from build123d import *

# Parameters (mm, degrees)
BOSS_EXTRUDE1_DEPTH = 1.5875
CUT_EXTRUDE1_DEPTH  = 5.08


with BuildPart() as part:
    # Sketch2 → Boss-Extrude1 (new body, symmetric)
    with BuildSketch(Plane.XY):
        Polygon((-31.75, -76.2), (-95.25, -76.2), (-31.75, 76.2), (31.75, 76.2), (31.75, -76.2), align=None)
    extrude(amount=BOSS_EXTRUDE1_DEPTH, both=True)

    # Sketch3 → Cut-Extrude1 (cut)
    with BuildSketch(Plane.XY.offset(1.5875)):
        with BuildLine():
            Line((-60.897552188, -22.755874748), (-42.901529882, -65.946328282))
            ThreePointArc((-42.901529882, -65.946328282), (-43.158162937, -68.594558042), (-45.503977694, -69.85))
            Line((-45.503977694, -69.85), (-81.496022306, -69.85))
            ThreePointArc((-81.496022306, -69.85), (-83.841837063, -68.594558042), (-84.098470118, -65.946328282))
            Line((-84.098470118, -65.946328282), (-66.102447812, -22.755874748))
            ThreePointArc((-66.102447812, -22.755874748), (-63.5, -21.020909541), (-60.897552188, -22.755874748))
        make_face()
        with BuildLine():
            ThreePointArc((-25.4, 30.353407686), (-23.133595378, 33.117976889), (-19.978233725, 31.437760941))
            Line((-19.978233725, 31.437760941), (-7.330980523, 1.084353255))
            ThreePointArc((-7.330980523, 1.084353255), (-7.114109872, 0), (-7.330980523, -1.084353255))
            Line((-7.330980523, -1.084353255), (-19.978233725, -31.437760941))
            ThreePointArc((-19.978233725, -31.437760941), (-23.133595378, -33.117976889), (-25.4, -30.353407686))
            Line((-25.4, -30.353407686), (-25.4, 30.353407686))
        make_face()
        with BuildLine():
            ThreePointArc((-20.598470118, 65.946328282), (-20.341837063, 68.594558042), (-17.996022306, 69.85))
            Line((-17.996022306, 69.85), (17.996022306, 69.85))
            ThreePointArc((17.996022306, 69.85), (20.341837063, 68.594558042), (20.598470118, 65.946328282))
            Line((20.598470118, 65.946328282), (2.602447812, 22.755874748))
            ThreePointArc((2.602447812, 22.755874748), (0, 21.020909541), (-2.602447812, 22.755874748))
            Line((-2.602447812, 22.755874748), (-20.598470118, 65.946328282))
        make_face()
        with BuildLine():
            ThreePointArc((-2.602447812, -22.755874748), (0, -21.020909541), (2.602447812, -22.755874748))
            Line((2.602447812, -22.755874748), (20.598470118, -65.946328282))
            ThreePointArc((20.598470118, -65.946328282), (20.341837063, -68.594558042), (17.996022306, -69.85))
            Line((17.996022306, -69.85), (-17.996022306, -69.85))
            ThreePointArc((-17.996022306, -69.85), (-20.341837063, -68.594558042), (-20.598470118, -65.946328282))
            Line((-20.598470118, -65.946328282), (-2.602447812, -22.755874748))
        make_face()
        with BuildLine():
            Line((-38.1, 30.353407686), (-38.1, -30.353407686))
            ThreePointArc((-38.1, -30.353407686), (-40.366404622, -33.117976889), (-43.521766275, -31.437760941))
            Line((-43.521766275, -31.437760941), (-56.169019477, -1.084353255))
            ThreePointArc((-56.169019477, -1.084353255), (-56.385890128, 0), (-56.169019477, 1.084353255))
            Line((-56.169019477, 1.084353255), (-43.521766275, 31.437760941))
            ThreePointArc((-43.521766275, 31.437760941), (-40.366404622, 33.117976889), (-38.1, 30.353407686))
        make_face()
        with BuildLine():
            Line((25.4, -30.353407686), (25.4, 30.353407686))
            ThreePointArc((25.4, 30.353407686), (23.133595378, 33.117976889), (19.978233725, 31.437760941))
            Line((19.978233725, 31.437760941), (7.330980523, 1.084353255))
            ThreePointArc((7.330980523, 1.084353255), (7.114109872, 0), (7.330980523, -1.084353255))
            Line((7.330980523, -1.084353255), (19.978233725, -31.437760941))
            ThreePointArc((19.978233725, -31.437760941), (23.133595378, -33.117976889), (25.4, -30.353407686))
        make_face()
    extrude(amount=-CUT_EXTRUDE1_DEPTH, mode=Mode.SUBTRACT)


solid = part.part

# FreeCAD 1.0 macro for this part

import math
import FreeCAD as App
import Part
import Sketcher
from FreeCAD import Vector
Q = App.Units.Quantity

doc = App.newDocument("Part")
body = doc.addObject("PartDesign::Body", "Body")

# Sketch on XY plane
sketch1 = body.newObject("Sketcher::SketchObject", "Sketch")
sketch1.AttachmentSupport = (doc.getObject("XY_Plane"), [""])
sketch1.MapMode = "FlatFace"
sketch1.addGeometry([
    Part.LineSegment(Vector(-95, -76, 0), Vector(32, -76, 0)),
    Part.LineSegment(Vector(32, -76, 0), Vector(32, 76, 0)),
    Part.LineSegment(Vector(32, 76, 0), Vector(-32, 76, 0)),
    Part.LineSegment(Vector(-32, 76, 0), Vector(-95, -76, 0)),
], False)
sketch1.addConstraint([
    Sketcher.Constraint("Coincident", 0, 2, 1, 1),
    Sketcher.Constraint("Coincident", 1, 2, 2, 1),
    Sketcher.Constraint("Coincident", 2, 2, 3, 1),
    Sketcher.Constraint("Coincident", 3, 2, 0, 1),
    Sketcher.Constraint("Horizontal", 0),
    Sketcher.Constraint("Vertical", 1),
    Sketcher.Constraint("Horizontal", 2),
    Sketcher.Constraint("Symmetric", 0, 2, 2, 2, -1, 1),
    Sketcher.Constraint("DistanceX", 0, 1, 0, 2, Q("5 in")),
    Sketcher.Constraint("DistanceY", 1, 1, 1, 2, Q("6 in")),
    Sketcher.Constraint("DistanceX", 2, 2, 2, 1, Q("2.5 in")),
])
pad1 = body.newObject("PartDesign::Pad", "Pad")
pad1.Profile = sketch1
pad1.Length = Q("0.125 in")
pad1.Midplane = True

# Sketch on XY plane
sketch2 = body.newObject("Sketcher::SketchObject", "Sketch001")
sketch2.AttachmentSupport = (doc.getObject("XY_Plane"), [""])
sketch2.MapMode = "FlatFace"
sketch2.AttachmentOffset = App.Placement(Vector(0, 0, 0.0625 * 25.4), App.Rotation())
sketch2.addGeometry([
    Part.LineSegment(Vector(-42.9, -65.9, 0), Vector(-60.9, -22.8, 0)),  # 0
    Part.ArcOfCircle(Part.Circle(Vector(-63.5, -23.8, 0), Vector(0, 0, 1), 2.8), math.radians(23), math.radians(157)),  # 1
    Part.LineSegment(Vector(-66.1, -22.8, 0), Vector(-84.1, -65.9, 0)),  # 2
    Part.ArcOfCircle(Part.Circle(Vector(-81.5, -67, 0), Vector(0, 0, 1), 2.8), math.radians(157), math.radians(270)),  # 3
    Part.LineSegment(Vector(-81.5, -69.8, 0), Vector(-45.5, -69.8, 0)),  # 4
    Part.ArcOfCircle(Part.Circle(Vector(-45.5, -67, 0), Vector(0, 0, 1), 2.8), math.radians(-90), math.radians(23)),  # 5
    Part.ArcOfCircle(Part.Circle(Vector(-22.6, 30.4, 0), Vector(0, 0, 1), 2.8), math.radians(23), math.radians(180)),  # 6
    Part.LineSegment(Vector(-25.4, 30.4, 0), Vector(-25.4, -30.4, 0)),  # 7
    Part.ArcOfCircle(Part.Circle(Vector(-22.6, -30.4, 0), Vector(0, 0, 1), 2.8), math.radians(180), math.radians(337)),  # 8
    Part.LineSegment(Vector(-20, -31.4, 0), Vector(-7.3, -1.1, 0)),  # 9
    Part.ArcOfCircle(Part.Circle(Vector(-9.9, 0, 0), Vector(0, 0, 1), 2.8), math.radians(-23), math.radians(23)),  # 10
    Part.LineSegment(Vector(-7.3, 1.1, 0), Vector(-20, 31.4, 0)),  # 11
    Part.ArcOfCircle(Part.Circle(Vector(-18, 67, 0), Vector(0, 0, 1), 2.8), math.radians(90), math.radians(203)),  # 12
    Part.LineSegment(Vector(-20.6, 65.9, 0), Vector(-2.6, 22.8, 0)),  # 13
    Part.ArcOfCircle(Part.Circle(Vector(0, 23.8, 0), Vector(0, 0, 1), 2.8), math.radians(-157), math.radians(-23)),  # 14
    Part.LineSegment(Vector(2.6, 22.8, 0), Vector(20.6, 65.9, 0)),  # 15
    Part.ArcOfCircle(Part.Circle(Vector(18, 67, 0), Vector(0, 0, 1), 2.8), math.radians(-23), math.radians(90)),  # 16
    Part.LineSegment(Vector(18, 69.8, 0), Vector(-18, 69.8, 0)),  # 17
    Part.ArcOfCircle(Part.Circle(Vector(0, -23.8, 0), Vector(0, 0, 1), 2.8), math.radians(23), math.radians(157)),  # 18
    Part.LineSegment(Vector(-2.6, -22.8, 0), Vector(-20.6, -65.9, 0)),  # 19
    Part.ArcOfCircle(Part.Circle(Vector(-18, -67, 0), Vector(0, 0, 1), 2.8), math.radians(157), math.radians(270)),  # 20
    Part.LineSegment(Vector(-18, -69.8, 0), Vector(18, -69.8, 0)),  # 21
    Part.ArcOfCircle(Part.Circle(Vector(18, -67, 0), Vector(0, 0, 1), 2.8), math.radians(-90), math.radians(23)),  # 22
    Part.LineSegment(Vector(20.6, -65.9, 0), Vector(2.6, -22.8, 0)),  # 23
    Part.LineSegment(Vector(-38.1, -30.4, 0), Vector(-38.1, 30.4, 0)),  # 24
    Part.ArcOfCircle(Part.Circle(Vector(-40.9, 30.4, 0), Vector(0, 0, 1), 2.8), math.radians(0), math.radians(157)),  # 25
    Part.LineSegment(Vector(-43.5, 31.4, 0), Vector(-56.2, 1.1, 0)),  # 26
    Part.ArcOfCircle(Part.Circle(Vector(-53.6, 0, 0), Vector(0, 0, 1), 2.8), math.radians(157), math.radians(203)),  # 27
    Part.LineSegment(Vector(-56.2, -1.1, 0), Vector(-43.5, -31.4, 0)),  # 28
    Part.ArcOfCircle(Part.Circle(Vector(-40.9, -30.4, 0), Vector(0, 0, 1), 2.8), math.radians(-157), math.radians(0)),  # 29
    Part.LineSegment(Vector(25.4, -30.4, 0), Vector(25.4, 30.4, 0)),  # 30
    Part.ArcOfCircle(Part.Circle(Vector(22.6, 30.4, 0), Vector(0, 0, 1), 2.8), math.radians(0), math.radians(157)),  # 31
    Part.LineSegment(Vector(20, 31.4, 0), Vector(7.3, 1.1, 0)),  # 32
    Part.ArcOfCircle(Part.Circle(Vector(9.9, 0, 0), Vector(0, 0, 1), 2.8), math.radians(157), math.radians(203)),  # 33
    Part.LineSegment(Vector(7.3, -1.1, 0), Vector(20, -31.4, 0)),  # 34
    Part.ArcOfCircle(Part.Circle(Vector(22.6, -30.4, 0), Vector(0, 0, 1), 2.8), math.radians(-157), math.radians(0)),  # 35
], False)
sketch2.addConstraint([
    Sketcher.Constraint("Tangent", 0, 2, 1, 1),
    Sketcher.Constraint("Tangent", 1, 2, 2, 1),
    Sketcher.Constraint("Tangent", 2, 2, 3, 1),
    Sketcher.Constraint("Tangent", 3, 2, 4, 1),
    Sketcher.Constraint("Tangent", 4, 2, 5, 1),
    Sketcher.Constraint("Tangent", 5, 2, 0, 1),
    Sketcher.Constraint("Tangent", 6, 2, 7, 1),
    Sketcher.Constraint("Tangent", 7, 2, 8, 1),
    Sketcher.Constraint("Tangent", 8, 2, 9, 1),
    Sketcher.Constraint("Tangent", 9, 2, 10, 1),
    Sketcher.Constraint("Tangent", 10, 2, 11, 1),
    Sketcher.Constraint("Tangent", 11, 2, 6, 1),
    Sketcher.Constraint("Tangent", 12, 2, 13, 1),
    Sketcher.Constraint("Tangent", 13, 2, 14, 1),
    Sketcher.Constraint("Tangent", 14, 2, 15, 1),
    Sketcher.Constraint("Tangent", 15, 2, 16, 1),
    Sketcher.Constraint("Tangent", 16, 2, 17, 1),
    Sketcher.Constraint("Tangent", 17, 2, 12, 1),
    Sketcher.Constraint("Tangent", 18, 2, 19, 1),
    Sketcher.Constraint("Tangent", 19, 2, 20, 1),
    Sketcher.Constraint("Tangent", 20, 2, 21, 1),
    Sketcher.Constraint("Tangent", 21, 2, 22, 1),
    Sketcher.Constraint("Tangent", 22, 2, 23, 1),
    Sketcher.Constraint("Tangent", 23, 2, 18, 1),
    Sketcher.Constraint("Tangent", 24, 2, 25, 1),
    Sketcher.Constraint("Tangent", 25, 2, 26, 1),
    Sketcher.Constraint("Tangent", 26, 2, 27, 1),
    Sketcher.Constraint("Tangent", 27, 2, 28, 1),
    Sketcher.Constraint("Tangent", 28, 2, 29, 1),
    Sketcher.Constraint("Tangent", 29, 2, 24, 1),
    Sketcher.Constraint("Tangent", 30, 2, 31, 1),
    Sketcher.Constraint("Tangent", 31, 2, 32, 1),
    Sketcher.Constraint("Tangent", 32, 2, 33, 1),
    Sketcher.Constraint("Tangent", 33, 2, 34, 1),
    Sketcher.Constraint("Tangent", 34, 2, 35, 1),
    Sketcher.Constraint("Tangent", 35, 2, 30, 1),
    Sketcher.Constraint("Horizontal", 4),
    Sketcher.Constraint("Vertical", 7),
    Sketcher.Constraint("Horizontal", 17),
    Sketcher.Constraint("Horizontal", 21),
    Sketcher.Constraint("Vertical", 24),
    Sketcher.Constraint("Vertical", 30),
    Sketcher.Constraint("Equal", 1, 3),
    Sketcher.Constraint("Equal", 3, 5),
    Sketcher.Constraint("Equal", 5, 6),
    Sketcher.Constraint("Equal", 6, 8),
    Sketcher.Constraint("Equal", 8, 10),
    Sketcher.Constraint("Equal", 10, 12),
    Sketcher.Constraint("Equal", 12, 14),
    Sketcher.Constraint("Equal", 14, 16),
    Sketcher.Constraint("Equal", 16, 18),
    Sketcher.Constraint("Equal", 18, 20),
    Sketcher.Constraint("Equal", 20, 22),
    Sketcher.Constraint("Equal", 22, 25),
    Sketcher.Constraint("Equal", 25, 27),
    Sketcher.Constraint("Equal", 27, 29),
    Sketcher.Constraint("Equal", 29, 31),
    Sketcher.Constraint("Equal", 31, 33),
    Sketcher.Constraint("Equal", 33, 35),
    Sketcher.Constraint("Symmetric", 14, 3, 18, 3, -1, 1),
    Sketcher.Constraint("Symmetric", 16, 3, 20, 3, -1, 1),
    Sketcher.Constraint("Symmetric", 8, 3, 31, 3, -1, 1),
    Sketcher.Constraint("Symmetric", 10, 3, 33, 3, -1, 1),
    Sketcher.Constraint("Symmetric", 13, 2, 14, 2, -2),
    Sketcher.Constraint("Symmetric", 11, 2, 31, 2, -2),
    Sketcher.Constraint("Symmetric", 26, 2, 27, 2, -1),
    Sketcher.Constraint("Parallel", 2, 9),
    Sketcher.Constraint("Parallel", 0, 11),
    Sketcher.Constraint("Parallel", 11, 13),
    Sketcher.Constraint("Parallel", 13, 23),
    Sketcher.Constraint("Parallel", 19, 26),
    Sketcher.Constraint("Parallel", 28, 34),
    Sketcher.Constraint("Horizontal", 1, 3, 18, 3),
    Sketcher.Constraint("Horizontal", 5, 3, 20, 3),
    Sketcher.Constraint("Horizontal", 6, 3, 25, 3),
    Sketcher.Constraint("DistanceX", 6, 2, -1, 1, Q("1 in")),
    Sketcher.Constraint("DistanceX", 1, 3, -1, 1, Q("2.5 in")),
    Sketcher.Constraint("DistanceX", 24, 2, -1, 1, Q("1.5 in")),
    Sketcher.Constraint("DistanceY", 3, 2, -1, 1, Q("2.75 in")),
    Sketcher.Constraint("Radius", 1, 2.819318),
    Sketcher.Constraint("DistanceY", 2, 2, 1, 3, 42.1061),
    Sketcher.Constraint("Distance", 9, 32.882858),
    Sketcher.Constraint("DistanceX", 4, 1, 4, 2, 35.992045),
])
pocket1 = body.newObject("PartDesign::Pocket", "Pocket")
pocket1.Profile = sketch2
pocket1.Length = Q("0.2 in")

doc.recompute()
